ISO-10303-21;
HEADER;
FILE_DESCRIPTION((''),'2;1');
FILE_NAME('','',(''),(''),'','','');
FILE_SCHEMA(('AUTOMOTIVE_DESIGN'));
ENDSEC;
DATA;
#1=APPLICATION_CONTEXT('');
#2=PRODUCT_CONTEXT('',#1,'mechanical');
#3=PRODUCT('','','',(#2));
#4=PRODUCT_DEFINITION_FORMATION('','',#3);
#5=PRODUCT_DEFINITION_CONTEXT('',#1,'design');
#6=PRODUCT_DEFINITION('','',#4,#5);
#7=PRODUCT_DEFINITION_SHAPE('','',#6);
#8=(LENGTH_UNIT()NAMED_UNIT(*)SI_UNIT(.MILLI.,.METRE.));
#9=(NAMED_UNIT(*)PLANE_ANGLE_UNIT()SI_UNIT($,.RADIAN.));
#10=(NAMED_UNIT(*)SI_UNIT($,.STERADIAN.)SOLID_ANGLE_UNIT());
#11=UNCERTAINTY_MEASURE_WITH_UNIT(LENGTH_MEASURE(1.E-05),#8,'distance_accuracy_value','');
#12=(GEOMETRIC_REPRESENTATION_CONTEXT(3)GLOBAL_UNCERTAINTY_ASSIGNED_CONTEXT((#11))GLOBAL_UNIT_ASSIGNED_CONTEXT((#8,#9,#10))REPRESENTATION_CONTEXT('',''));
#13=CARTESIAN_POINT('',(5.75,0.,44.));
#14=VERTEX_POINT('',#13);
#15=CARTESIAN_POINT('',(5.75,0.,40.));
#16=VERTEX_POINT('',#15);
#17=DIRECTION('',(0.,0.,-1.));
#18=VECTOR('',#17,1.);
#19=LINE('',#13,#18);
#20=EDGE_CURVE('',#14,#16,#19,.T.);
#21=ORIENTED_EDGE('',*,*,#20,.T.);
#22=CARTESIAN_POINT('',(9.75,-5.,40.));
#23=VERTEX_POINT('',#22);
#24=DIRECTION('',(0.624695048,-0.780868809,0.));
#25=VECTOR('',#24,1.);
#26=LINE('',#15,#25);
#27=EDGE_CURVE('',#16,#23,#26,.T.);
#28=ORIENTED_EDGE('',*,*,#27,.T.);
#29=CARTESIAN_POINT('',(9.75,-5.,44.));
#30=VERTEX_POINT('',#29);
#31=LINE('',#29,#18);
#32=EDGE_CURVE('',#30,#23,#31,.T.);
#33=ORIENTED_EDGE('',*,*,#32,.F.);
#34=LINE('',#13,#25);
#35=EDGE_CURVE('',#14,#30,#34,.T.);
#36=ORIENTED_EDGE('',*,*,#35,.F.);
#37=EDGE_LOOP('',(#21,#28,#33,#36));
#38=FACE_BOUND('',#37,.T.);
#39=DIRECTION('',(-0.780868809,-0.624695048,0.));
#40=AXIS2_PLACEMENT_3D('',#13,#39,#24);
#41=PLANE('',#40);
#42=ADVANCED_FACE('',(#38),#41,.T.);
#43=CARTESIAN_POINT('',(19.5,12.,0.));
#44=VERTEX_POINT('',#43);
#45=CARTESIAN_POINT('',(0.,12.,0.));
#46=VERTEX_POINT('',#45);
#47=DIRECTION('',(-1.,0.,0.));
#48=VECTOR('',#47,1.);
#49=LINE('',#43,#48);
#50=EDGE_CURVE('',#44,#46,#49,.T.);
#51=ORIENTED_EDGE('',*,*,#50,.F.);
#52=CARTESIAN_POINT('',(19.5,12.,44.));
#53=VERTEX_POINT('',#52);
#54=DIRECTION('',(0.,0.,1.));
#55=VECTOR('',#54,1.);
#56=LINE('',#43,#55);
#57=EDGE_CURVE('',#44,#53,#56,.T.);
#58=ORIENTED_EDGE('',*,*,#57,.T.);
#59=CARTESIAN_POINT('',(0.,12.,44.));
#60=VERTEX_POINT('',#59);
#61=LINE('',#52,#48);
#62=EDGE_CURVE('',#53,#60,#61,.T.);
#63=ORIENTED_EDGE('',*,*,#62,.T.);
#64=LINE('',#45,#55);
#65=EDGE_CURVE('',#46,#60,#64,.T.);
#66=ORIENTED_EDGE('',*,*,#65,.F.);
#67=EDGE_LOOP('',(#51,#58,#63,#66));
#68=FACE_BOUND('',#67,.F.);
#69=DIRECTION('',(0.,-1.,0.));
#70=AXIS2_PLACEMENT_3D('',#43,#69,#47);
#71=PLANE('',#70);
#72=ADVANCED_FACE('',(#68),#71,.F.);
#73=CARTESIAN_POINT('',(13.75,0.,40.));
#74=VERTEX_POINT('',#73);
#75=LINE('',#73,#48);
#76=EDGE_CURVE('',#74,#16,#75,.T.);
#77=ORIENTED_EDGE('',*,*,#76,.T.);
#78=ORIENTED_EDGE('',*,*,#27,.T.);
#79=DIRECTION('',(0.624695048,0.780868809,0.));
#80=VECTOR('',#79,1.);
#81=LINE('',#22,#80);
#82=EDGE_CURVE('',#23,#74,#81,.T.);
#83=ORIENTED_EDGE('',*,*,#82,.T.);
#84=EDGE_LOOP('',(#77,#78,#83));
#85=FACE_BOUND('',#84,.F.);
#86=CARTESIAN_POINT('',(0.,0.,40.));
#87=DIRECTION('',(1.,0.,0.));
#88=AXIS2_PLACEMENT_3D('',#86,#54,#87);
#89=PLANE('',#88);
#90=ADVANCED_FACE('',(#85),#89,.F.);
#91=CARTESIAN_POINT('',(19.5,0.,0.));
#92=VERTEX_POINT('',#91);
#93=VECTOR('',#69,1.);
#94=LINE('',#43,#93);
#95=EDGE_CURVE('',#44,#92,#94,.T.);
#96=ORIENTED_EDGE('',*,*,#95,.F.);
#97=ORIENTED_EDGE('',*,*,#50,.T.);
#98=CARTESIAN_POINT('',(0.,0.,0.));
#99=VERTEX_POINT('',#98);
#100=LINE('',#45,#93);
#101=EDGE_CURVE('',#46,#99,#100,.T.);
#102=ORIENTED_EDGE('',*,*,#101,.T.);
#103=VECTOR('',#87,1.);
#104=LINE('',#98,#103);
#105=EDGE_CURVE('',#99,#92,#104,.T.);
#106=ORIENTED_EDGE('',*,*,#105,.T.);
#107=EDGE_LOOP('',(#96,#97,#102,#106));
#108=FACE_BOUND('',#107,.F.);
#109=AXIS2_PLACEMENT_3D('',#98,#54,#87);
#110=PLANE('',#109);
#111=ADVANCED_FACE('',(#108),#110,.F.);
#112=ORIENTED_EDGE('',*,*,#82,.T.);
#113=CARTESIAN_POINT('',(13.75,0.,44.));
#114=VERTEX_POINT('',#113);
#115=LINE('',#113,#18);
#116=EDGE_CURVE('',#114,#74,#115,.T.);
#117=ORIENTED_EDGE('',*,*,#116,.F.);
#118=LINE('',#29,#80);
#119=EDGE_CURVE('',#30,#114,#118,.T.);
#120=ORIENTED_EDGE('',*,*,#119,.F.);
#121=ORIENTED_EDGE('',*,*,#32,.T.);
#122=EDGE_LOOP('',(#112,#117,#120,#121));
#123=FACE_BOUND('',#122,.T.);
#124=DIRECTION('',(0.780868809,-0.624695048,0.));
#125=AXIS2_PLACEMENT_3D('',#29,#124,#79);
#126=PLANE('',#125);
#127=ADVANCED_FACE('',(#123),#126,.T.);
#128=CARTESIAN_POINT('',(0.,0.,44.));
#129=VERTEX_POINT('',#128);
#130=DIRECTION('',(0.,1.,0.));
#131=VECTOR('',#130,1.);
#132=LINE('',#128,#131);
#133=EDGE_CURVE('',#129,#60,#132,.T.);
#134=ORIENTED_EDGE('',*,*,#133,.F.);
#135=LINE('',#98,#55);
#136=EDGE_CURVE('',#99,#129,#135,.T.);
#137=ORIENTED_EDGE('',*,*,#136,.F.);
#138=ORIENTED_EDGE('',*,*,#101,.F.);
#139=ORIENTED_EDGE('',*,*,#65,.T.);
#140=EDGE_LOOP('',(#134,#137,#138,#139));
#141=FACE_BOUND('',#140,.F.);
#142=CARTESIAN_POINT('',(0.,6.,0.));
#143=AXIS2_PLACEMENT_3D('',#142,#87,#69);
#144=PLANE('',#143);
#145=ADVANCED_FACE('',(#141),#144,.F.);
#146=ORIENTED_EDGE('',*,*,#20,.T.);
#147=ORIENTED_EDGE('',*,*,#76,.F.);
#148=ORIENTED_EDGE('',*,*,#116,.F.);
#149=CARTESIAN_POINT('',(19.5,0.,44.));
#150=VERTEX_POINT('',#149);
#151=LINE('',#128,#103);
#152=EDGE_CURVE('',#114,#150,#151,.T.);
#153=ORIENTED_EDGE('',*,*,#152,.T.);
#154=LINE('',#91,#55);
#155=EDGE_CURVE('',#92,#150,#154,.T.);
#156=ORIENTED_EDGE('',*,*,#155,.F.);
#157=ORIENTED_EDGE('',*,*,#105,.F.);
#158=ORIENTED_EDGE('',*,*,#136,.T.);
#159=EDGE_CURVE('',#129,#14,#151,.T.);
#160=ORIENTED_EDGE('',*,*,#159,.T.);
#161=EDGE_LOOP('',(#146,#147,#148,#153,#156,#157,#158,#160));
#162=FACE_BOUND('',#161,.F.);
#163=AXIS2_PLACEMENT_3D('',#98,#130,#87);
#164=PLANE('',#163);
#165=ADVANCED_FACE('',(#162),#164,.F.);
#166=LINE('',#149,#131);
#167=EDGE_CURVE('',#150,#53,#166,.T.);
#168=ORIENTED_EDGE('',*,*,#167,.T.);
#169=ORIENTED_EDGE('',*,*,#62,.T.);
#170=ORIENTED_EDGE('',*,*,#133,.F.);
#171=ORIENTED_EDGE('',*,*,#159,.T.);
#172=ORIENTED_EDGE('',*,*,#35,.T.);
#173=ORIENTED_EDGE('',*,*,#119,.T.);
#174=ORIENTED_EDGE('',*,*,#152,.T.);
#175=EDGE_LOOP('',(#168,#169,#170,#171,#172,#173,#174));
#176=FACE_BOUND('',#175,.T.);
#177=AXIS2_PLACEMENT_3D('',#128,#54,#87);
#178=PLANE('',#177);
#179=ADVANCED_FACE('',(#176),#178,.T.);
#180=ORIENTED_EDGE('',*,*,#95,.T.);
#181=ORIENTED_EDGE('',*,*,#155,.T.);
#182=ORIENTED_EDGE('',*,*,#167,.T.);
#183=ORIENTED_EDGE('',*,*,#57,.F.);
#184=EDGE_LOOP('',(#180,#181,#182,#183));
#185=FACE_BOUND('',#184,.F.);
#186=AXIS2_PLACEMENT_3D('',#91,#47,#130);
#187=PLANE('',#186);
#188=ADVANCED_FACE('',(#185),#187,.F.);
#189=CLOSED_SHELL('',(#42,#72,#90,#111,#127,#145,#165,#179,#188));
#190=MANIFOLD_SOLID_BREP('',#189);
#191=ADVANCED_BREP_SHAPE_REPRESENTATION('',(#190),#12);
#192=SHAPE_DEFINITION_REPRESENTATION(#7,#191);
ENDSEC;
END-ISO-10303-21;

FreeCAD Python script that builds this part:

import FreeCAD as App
import Part
import Sketcher

V = App.Vector

doc = App.newDocument("Part")
body = doc.addObject("PartDesign::Body", "Body")

# Sketch on XY plane
sketch1 = doc.addObject("Sketcher::SketchObject", "Sketch")
body.addObject(sketch1)
sketch1.AttachmentSupport = (doc.XY_Plane, [""])
sketch1.MapMode = "FlatFace"
sketch1.addGeometry(Part.LineSegment(V(0, 12, 0), V(0, 0, 0)), False)
sketch1.addGeometry(Part.LineSegment(V(0, 0, 0), V(20, 0, 0)), False)
sketch1.addGeometry(Part.LineSegment(V(20, 0, 0), V(20, 12, 0)), False)
sketch1.addGeometry(Part.LineSegment(V(20, 12, 0), V(0, 12, 0)), False)
sketch1.addConstraint(Sketcher.Constraint("Coincident", 0, 2, 1, 1))
sketch1.addConstraint(Sketcher.Constraint("Coincident", 1, 2, 2, 1))
sketch1.addConstraint(Sketcher.Constraint("Coincident", 2, 2, 3, 1))
sketch1.addConstraint(Sketcher.Constraint("Coincident", 3, 2, 0, 1))
sketch1.addConstraint(Sketcher.Constraint("Vertical", 0))
sketch1.addConstraint(Sketcher.Constraint("Horizontal", 1))
sketch1.addConstraint(Sketcher.Constraint("Vertical", 2))
sketch1.addConstraint(Sketcher.Constraint("Horizontal", 3))
sketch1.addConstraint(Sketcher.Constraint("Coincident", 0, 2, -1, 1))
sketch1.addConstraint(Sketcher.Constraint("DistanceY", 0, 2, 0, 1, 12.0))
sketch1.addConstraint(Sketcher.Constraint("DistanceX", 1, 1, 1, 2, 19.5))
pad1 = doc.addObject("PartDesign::Pad", "Pad")
body.addObject(pad1)
pad1.Profile = sketch1
pad1.Length = 44

# Sketch on XY plane
sketch2 = doc.addObject("Sketcher::SketchObject", "Sketch001")
body.addObject(sketch2)
sketch2.AttachmentSupport = (doc.XY_Plane, [""])
sketch2.MapMode = "FlatFace"
sketch2.AttachmentOffset = App.Placement(V(0, 0, 44), App.Rotation())
sketch2.addGeometry(Part.LineSegment(V(6, 0, 0), V(10, -5, 0)), False)
sketch2.addGeometry(Part.LineSegment(V(10, -5, 0), V(14, 0, 0)), False)
sketch2.addGeometry(Part.LineSegment(V(14, 0, 0), V(6, 0, 0)), False)
sketch2.addConstraint(Sketcher.Constraint("Coincident", 0, 2, 1, 1))
sketch2.addConstraint(Sketcher.Constraint("Coincident", 1, 2, 2, 1))
sketch2.addConstraint(Sketcher.Constraint("Coincident", 2, 2, 0, 1))
sketch2.addConstraint(Sketcher.Constraint("Horizontal", 2))
sketch2.addConstraint(Sketcher.Constraint("PointOnObject", 1, 2, -1))
sketch2.addConstraint(Sketcher.Constraint("Equal", 0, 1))
sketch2.addConstraint(Sketcher.Constraint("DistanceY", 0, 2, -1, 1, 5.0))
sketch2.addConstraint(Sketcher.Constraint("DistanceX", 0, 2, 1, 2, 4.0))
sketch2.addConstraint(Sketcher.Constraint("DistanceX", -1, 1, 0, 2, 9.75))
pad2 = doc.addObject("PartDesign::Pad", "Pad001")
body.addObject(pad2)
pad2.Profile = sketch2
pad2.Length = 4
pad2.Reversed = True

doc.recompute()
